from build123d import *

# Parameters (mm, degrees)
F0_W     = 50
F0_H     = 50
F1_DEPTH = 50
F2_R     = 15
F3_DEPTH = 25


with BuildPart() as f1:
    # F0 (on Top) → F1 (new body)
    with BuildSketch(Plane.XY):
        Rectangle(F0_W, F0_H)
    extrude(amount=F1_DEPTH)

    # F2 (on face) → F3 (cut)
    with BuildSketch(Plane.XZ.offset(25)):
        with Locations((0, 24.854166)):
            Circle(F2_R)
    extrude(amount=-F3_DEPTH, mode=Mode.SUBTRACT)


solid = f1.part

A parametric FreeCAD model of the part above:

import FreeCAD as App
import Part
import Sketcher

V = App.Vector
Q = App.Units.Quantity

doc = App.newDocument("Part")
body = doc.addObject("PartDesign::Body", "Body")

# Sketch on XY plane
sketch1 = body.newObject("Sketcher::SketchObject", "Sketch")
sketch1.AttachmentSupport = (doc.getObject("XY_Plane"), [""])
sketch1.MapMode = "FlatFace"
sketch1.addGeometry(Part.LineSegment(V(-25, 25, 0), V(-25, -25, 0)), False)
sketch1.addGeometry(Part.LineSegment(V(-25, -25, 0), V(25, -25, 0)), False)
sketch1.addGeometry(Part.LineSegment(V(25, -25, 0), V(25, 25, 0)), False)
sketch1.addGeometry(Part.LineSegment(V(25, 25, 0), V(-25, 25, 0)), False)
sketch1.addConstraint(Sketcher.Constraint("Coincident", 0, 2, 1, 1))
sketch1.addConstraint(Sketcher.Constraint("Coincident", 1, 2, 2, 1))
sketch1.addConstraint(Sketcher.Constraint("Coincident", 2, 2, 3, 1))
sketch1.addConstraint(Sketcher.Constraint("Coincident", 3, 2, 0, 1))
sketch1.addConstraint(Sketcher.Constraint("Vertical", 0))
sketch1.addConstraint(Sketcher.Constraint("Horizontal", 1))
sketch1.addConstraint(Sketcher.Constraint("Vertical", 2))
sketch1.addConstraint(Sketcher.Constraint("Horizontal", 3))
sketch1.addConstraint(Sketcher.Constraint("Symmetric", 0, 2, 2, 2, -1, 1))
sketch1.addConstraint(Sketcher.Constraint("Equal", 3, 0))
sketch1.addConstraint(Sketcher.Constraint("DistanceX", 1, 1, 1, 2, Q("50 mm")))
pad1 = body.newObject("PartDesign::Pad", "Pad")
pad1.Profile = sketch1
pad1.Length = 50

# Sketch on XZ plane
sketch2 = body.newObject("Sketcher::SketchObject", "Sketch001")
sketch2.AttachmentSupport = (doc.getObject("XZ_Plane"), [""])
sketch2.MapMode = "FlatFace"
sketch2.AttachmentOffset = App.Placement(V(0, 0, 25), App.Rotation())
sketch2.addGeometry(Part.Circle(V(0, 25, 0), V(0, 0, 1), 15), False)
sketch2.addConstraint(Sketcher.Constraint("PointOnObject", 0, 3, -2))
sketch2.addConstraint(Sketcher.Constraint("Diameter", 0, Q("30 mm")))
sketch2.addConstraint(Sketcher.Constraint("DistanceY", -1, 1, 0, 3, Q("24.854166 mm")))
pocket1 = body.newObject("PartDesign::Pocket", "Pocket")
pocket1.Profile = sketch2
pocket1.Length = 25

doc.recompute()
